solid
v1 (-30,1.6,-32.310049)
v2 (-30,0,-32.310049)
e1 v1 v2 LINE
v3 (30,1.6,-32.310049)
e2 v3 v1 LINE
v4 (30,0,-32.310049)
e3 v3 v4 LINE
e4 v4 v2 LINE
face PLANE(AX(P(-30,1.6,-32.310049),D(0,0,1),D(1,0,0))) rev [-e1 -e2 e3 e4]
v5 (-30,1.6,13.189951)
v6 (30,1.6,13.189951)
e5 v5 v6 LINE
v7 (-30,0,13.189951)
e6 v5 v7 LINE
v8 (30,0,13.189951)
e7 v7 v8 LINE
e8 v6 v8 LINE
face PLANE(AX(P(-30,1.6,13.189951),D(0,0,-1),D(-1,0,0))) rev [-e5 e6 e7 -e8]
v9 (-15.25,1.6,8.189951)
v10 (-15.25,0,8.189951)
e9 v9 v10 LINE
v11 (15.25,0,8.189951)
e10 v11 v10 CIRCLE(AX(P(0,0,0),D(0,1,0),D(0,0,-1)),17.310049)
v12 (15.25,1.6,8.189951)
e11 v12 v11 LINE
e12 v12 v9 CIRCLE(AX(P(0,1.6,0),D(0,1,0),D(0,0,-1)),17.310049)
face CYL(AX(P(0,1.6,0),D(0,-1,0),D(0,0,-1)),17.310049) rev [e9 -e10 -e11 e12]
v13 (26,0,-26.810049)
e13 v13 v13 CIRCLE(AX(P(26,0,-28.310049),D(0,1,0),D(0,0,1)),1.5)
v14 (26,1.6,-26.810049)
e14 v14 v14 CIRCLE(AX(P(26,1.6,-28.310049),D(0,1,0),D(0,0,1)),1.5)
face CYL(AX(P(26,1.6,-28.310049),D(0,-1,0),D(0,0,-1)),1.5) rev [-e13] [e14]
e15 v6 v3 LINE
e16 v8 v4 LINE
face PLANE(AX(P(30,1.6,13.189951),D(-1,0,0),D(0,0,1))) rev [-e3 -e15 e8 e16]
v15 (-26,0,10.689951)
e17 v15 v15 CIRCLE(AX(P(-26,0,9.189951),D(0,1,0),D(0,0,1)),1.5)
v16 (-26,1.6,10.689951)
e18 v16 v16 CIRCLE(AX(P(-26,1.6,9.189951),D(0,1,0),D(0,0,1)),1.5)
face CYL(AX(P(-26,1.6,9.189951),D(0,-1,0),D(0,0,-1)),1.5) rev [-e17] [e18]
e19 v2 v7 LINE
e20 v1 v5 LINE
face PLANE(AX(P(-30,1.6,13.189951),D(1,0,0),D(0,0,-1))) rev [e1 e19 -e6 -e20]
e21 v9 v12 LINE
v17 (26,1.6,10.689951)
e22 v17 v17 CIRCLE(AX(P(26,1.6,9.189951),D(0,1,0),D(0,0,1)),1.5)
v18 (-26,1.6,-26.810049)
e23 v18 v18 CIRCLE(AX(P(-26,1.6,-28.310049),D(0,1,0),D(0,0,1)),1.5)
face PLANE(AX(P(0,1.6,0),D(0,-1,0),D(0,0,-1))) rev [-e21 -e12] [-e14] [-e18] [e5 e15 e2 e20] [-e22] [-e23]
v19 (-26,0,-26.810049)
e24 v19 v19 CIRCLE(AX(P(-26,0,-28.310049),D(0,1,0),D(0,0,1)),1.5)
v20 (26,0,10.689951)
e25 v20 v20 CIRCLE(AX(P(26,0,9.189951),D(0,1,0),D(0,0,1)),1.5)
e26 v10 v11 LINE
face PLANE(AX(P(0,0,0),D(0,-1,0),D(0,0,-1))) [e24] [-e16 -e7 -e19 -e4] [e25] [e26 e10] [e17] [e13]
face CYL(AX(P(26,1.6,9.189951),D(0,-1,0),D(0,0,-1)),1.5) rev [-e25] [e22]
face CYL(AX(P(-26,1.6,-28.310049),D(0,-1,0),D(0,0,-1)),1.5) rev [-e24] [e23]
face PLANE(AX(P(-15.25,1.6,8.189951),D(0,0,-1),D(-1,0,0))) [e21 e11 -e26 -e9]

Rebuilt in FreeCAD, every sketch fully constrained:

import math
import FreeCAD as App
import Part
import Sketcher

V = App.Vector

doc = App.newDocument("Part")
params = doc.addObject("Spreadsheet::Sheet", "Params")
for row, (alias, value) in enumerate([
    ("sketch1_diameter", "3 mm"),
    ("sketch1_width", "60 mm"),
    ("sketch1_width2", "30.5 mm"),
    ("sketch1_height", "45.5 mm"),
    ("pad1_length", "1.6 mm"),
], start=1):
    params.set(f"A{row}", alias)
    params.set(f"B{row}", "=" + value)
    params.setAlias(f"B{row}", alias)

body = doc.addObject("PartDesign::Body", "Body")

sketch1 = body.newObject("Sketcher::SketchObject", "Sketch")
sketch1.AttachmentSupport = (doc.getObject("XZ_Plane"), [""])
sketch1.MapMode = "FlatFace"
sketch1.addGeometry([
    Part.LineSegment(V(-30, -32.3, 0), V(-30, 13.2, 0)),
    Part.LineSegment(V(-30, 13.2, 0), V(30, 13.2, 0)),
    Part.LineSegment(V(30, 13.2, 0), V(30, -32.3, 0)),
    Part.LineSegment(V(30, -32.3, 0), V(-30, -32.3, 0)),
    Part.Circle(V(-26, 9.2, 0), V(0, 0, 1), 1.5),
    Part.Circle(V(26, 9.2, 0), V(0, 0, 1), 1.5),
    Part.LineSegment(V(15.2, 8.2, 0), V(-15.2, 8.2, 0)),
    Part.ArcOfCircle(Part.Circle(V(0, 0, 0), V(0, 0, 1), 17.3), math.radians(152), math.radians(388)),
    Part.Circle(V(-26, -28.3, 0), V(0, 0, 1), 1.5),
    Part.Circle(V(26, -28.3, 0), V(0, 0, 1), 1.5),
], False)
sketch1.addConstraint([
    Sketcher.Constraint("Coincident", 0, 2, 1, 1),
    Sketcher.Constraint("Coincident", 1, 2, 2, 1),
    Sketcher.Constraint("Coincident", 2, 2, 3, 1),
    Sketcher.Constraint("Coincident", 3, 2, 0, 1),
    Sketcher.Constraint("Coincident", 6, 1, 7, 2),
    Sketcher.Constraint("Coincident", 7, 1, 6, 2),
    Sketcher.Constraint("Vertical", 0),
    Sketcher.Constraint("Horizontal", 1),
    Sketcher.Constraint("Vertical", 2),
    Sketcher.Constraint("Horizontal", 3),
    Sketcher.Constraint("Horizontal", 6),
    Sketcher.Constraint("Coincident", 7, 3, -1, 1),
    Sketcher.Constraint("Equal", 4, 5),
    Sketcher.Constraint("Equal", 5, 8),
    Sketcher.Constraint("Equal", 8, 9),
    Sketcher.Constraint("Symmetric", 4, 3, 5, 3, -2),
    Sketcher.Constraint("Symmetric", 8, 3, 9, 3, -2),
    Sketcher.Constraint("Vertical", 4, 3, 8, 3),
    Sketcher.Constraint("Diameter", 4, 3.0),
    Sketcher.Constraint("DistanceX", 1, 1, 1, 2, 60.0),
    Sketcher.Constraint("DistanceX", 6, 2, 6, 1, 30.5),
    Sketcher.Constraint("DistanceY", 0, 1, 0, 2, 45.5),
    Sketcher.Constraint("DistanceX", 4, 3, -1, 1, 26.0),
    Sketcher.Constraint("DistanceX", 0, 2, -1, 1, 30.0),
    Sketcher.Constraint("DistanceY", 4, 3, 0, 2, 4.0),
    Sketcher.Constraint("DistanceY", 2, 2, 9, 3, 4.0),
    Sketcher.Constraint("DistanceY", 6, 1, 5, 3, 1.0),
    Sketcher.Constraint("Radius", 7, 17.310049),
])
sketch1.setExpression("Constraints[18]", "Params.sketch1_diameter")
sketch1.setExpression("Constraints[19]", "Params.sketch1_width")
sketch1.setExpression("Constraints[20]", "Params.sketch1_width2")
sketch1.setExpression("Constraints[21]", "Params.sketch1_height")
pad1 = body.newObject("PartDesign::Pad", "Pad")
pad1.Profile = sketch1
pad1.setExpression("Length", "Params.pad1_length")
pad1.Reversed = True

doc.recompute()
